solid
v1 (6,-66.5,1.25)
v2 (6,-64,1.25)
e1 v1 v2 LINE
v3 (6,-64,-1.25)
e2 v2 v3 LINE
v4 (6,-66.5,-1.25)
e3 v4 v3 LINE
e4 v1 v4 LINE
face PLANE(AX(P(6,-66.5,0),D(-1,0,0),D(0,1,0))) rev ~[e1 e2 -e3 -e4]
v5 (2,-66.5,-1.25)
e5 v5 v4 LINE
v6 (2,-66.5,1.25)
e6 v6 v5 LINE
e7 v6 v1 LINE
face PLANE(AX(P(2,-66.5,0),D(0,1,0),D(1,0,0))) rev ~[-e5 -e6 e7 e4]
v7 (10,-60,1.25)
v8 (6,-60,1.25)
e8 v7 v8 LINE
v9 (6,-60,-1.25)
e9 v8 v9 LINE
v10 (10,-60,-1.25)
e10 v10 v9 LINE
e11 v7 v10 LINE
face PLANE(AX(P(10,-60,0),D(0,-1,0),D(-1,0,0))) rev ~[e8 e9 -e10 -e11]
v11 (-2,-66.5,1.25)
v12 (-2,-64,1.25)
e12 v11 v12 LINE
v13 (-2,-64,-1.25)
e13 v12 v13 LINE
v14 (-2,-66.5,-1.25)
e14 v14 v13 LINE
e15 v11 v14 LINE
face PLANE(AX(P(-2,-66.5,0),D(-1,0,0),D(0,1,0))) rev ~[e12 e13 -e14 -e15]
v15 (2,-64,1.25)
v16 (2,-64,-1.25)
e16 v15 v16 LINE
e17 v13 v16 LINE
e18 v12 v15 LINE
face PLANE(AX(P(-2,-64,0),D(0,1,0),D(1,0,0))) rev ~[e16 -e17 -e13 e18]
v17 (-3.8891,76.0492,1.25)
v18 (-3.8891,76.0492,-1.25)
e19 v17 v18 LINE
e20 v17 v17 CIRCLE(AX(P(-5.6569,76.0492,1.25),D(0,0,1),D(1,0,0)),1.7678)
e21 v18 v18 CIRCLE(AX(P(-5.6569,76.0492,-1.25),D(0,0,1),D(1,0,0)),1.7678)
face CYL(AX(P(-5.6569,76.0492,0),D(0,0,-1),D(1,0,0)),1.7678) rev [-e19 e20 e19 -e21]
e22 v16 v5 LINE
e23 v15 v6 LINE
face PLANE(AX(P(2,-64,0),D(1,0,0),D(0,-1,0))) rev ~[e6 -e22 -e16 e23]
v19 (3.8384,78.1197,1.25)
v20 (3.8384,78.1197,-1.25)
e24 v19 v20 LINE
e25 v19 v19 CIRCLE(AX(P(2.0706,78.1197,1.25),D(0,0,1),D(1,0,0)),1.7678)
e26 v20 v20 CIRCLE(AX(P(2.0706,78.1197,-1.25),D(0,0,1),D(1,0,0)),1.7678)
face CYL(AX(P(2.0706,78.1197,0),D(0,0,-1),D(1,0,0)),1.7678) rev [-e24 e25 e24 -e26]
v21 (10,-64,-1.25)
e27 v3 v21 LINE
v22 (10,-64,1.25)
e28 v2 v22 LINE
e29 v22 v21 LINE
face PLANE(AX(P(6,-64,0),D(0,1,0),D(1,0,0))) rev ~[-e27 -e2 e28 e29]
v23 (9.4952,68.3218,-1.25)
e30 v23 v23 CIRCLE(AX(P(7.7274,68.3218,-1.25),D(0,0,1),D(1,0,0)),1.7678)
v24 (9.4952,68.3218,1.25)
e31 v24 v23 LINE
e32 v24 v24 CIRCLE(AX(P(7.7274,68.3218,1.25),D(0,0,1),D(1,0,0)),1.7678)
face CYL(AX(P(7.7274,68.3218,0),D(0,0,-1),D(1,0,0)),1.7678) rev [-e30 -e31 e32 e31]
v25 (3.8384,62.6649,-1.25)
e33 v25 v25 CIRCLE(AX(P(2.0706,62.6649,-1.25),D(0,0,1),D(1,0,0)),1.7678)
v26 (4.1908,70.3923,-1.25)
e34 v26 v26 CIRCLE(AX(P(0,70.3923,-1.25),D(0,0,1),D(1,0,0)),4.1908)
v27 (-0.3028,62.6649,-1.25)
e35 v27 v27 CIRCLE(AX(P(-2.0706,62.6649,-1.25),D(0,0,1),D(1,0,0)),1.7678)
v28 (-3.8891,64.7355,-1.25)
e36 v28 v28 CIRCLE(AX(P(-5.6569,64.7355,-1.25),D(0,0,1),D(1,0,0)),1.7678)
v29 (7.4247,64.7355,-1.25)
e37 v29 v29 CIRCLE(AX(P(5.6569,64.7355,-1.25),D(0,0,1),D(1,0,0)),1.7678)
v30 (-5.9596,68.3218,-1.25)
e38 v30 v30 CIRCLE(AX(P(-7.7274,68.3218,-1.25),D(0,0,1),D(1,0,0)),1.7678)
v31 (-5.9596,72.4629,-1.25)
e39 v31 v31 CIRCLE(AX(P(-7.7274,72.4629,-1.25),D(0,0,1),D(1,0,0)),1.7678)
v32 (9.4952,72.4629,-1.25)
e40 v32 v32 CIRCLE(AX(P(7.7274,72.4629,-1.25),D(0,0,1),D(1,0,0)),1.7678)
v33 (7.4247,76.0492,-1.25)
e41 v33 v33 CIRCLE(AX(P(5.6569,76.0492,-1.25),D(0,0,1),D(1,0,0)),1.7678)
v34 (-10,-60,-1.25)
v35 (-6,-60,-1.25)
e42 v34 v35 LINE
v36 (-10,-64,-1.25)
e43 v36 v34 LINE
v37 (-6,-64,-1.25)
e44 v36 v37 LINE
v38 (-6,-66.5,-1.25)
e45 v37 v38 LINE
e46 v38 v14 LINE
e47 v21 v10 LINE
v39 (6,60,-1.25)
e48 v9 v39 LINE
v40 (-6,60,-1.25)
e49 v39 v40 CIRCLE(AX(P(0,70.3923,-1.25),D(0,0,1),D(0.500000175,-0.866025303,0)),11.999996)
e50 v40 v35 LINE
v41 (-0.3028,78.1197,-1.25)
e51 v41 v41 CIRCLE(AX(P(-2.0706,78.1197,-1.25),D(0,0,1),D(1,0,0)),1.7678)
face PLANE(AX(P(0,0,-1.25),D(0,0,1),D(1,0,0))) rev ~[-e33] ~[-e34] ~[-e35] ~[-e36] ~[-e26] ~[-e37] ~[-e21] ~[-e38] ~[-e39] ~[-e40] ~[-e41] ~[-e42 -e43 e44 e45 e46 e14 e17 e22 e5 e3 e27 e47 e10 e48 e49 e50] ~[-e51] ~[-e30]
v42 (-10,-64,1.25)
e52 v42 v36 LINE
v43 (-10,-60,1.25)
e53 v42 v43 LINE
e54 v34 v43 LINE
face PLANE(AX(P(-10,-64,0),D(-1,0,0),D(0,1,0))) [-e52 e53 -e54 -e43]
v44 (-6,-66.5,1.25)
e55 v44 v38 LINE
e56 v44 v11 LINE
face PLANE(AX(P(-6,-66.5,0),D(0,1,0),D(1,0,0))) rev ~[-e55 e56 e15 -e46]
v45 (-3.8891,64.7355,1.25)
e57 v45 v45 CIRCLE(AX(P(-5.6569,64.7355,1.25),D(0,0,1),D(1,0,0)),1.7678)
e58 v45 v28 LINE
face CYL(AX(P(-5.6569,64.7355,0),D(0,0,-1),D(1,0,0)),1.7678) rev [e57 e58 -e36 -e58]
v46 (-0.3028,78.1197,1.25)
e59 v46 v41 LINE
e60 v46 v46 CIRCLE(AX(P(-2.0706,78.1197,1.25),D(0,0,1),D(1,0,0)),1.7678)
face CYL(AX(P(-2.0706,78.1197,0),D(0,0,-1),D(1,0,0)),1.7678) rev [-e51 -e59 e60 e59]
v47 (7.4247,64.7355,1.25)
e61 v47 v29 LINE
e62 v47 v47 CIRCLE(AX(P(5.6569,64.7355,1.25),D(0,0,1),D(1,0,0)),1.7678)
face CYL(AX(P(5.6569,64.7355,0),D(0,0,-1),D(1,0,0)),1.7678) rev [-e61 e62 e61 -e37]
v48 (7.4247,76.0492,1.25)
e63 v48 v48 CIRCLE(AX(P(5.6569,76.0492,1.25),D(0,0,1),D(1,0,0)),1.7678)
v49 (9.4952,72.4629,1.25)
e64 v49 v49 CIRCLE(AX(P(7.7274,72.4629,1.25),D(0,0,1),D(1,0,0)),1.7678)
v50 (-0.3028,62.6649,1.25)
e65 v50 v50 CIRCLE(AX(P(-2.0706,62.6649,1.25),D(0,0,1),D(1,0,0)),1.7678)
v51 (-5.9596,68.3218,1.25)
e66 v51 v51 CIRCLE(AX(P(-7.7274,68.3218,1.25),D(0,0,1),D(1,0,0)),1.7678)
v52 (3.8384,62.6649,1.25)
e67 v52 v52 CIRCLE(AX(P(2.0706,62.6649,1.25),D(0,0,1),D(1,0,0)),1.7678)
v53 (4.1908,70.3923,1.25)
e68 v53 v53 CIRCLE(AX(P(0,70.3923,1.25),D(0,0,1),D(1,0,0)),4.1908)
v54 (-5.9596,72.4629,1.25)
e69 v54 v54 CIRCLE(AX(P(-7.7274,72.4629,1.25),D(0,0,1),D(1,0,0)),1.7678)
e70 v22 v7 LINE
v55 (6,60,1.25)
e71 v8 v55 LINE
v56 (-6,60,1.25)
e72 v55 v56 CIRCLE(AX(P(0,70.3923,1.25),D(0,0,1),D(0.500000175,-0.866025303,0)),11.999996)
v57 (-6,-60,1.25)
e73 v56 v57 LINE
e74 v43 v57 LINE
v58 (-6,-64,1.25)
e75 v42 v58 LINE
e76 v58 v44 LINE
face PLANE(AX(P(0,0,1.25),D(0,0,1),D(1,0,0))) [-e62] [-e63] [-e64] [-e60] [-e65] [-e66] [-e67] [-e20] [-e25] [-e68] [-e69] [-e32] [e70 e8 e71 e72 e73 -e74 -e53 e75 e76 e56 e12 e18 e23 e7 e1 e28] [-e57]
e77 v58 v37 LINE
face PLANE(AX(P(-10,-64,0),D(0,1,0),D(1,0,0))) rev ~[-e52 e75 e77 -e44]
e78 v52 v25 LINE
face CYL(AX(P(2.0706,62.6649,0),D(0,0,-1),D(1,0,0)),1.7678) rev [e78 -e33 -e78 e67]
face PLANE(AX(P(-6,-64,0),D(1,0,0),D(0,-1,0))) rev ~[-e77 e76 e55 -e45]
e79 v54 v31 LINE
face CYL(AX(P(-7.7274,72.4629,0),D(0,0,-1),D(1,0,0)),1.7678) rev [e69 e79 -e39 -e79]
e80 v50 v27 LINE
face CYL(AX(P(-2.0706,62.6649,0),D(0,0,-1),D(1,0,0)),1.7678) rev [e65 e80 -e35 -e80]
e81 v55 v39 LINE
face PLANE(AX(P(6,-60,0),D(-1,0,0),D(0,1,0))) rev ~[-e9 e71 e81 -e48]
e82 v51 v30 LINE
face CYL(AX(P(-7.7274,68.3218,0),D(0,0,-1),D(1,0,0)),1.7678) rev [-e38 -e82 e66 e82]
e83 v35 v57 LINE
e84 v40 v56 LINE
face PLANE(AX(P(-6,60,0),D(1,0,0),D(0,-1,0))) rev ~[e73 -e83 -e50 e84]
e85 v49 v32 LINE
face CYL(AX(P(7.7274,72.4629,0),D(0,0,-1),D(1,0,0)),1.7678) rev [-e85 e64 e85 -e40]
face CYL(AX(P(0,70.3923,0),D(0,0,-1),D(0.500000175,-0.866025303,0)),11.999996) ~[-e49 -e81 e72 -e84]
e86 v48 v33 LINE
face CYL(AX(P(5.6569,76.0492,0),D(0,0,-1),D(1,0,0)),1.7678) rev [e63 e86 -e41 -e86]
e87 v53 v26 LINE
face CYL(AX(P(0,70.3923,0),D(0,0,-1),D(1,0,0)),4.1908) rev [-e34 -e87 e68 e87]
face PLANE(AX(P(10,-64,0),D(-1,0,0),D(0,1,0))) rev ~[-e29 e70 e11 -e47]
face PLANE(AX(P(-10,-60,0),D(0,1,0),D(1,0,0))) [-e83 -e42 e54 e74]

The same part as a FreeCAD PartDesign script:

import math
import FreeCAD as App
import Part
import Sketcher

V = App.Vector

doc = App.newDocument("Part")
params = doc.addObject("Spreadsheet::Sheet", "Params")
for row, (alias, value) in enumerate([
    ("sketch1_radius", "12 mm"),
    ("sketch1_width", "4 mm"),
    ("sketch1_height", "120 mm"),
    ("sketch1_height2", "2.5 mm"),
    ("pad1_length", "2.5 mm"),
], start=1):
    params.set(f"A{row}", alias)
    params.set(f"B{row}", "=" + value)
    params.setAlias(f"B{row}", alias)

body = doc.addObject("PartDesign::Body", "Body")

# Sketch on XY plane
sketch1 = body.newObject("Sketcher::SketchObject", "Sketch")
sketch1.AttachmentSupport = (doc.getObject("XY_Plane"), [""])
sketch1.MapMode = "FlatFace"
sketch1.addGeometry(Part.ArcOfCircle(Part.Circle(V(0, 70.4, 0), V(0, 0, 1), 12), math.radians(-60), math.radians(240)), False)
sketch1.addGeometry(Part.LineSegment(V(-6, 60, 0), V(-6, -60, 0)), False)
sketch1.addGeometry(Part.LineSegment(V(-6, -60, 0), V(-10, -60, 0)), False)
sketch1.addGeometry(Part.LineSegment(V(-10, -60, 0), V(-10, -64, 0)), False)
sketch1.addGeometry(Part.LineSegment(V(-10, -64, 0), V(-6, -64, 0)), False)
sketch1.addGeometry(Part.LineSegment(V(-6, -64, 0), V(-6, -66.5, 0)), False)
sketch1.addGeometry(Part.LineSegment(V(-6, -66.5, 0), V(-2, -66.5, 0)), False)
sketch1.addGeometry(Part.LineSegment(V(-2, -66.5, 0), V(-2, -64, 0)), False)
sketch1.addGeometry(Part.LineSegment(V(-2, -64, 0), V(2, -64, 0)), False)
sketch1.addGeometry(Part.LineSegment(V(2, -64, 0), V(2, -66.5, 0)), False)
sketch1.addGeometry(Part.LineSegment(V(2, -66.5, 0), V(6, -66.5, 0)), False)
sketch1.addGeometry(Part.LineSegment(V(6, -66.5, 0), V(6, -64, 0)), False)
sketch1.addGeometry(Part.LineSegment(V(6, -64, 0), V(10, -64, 0)), False)
sketch1.addGeometry(Part.LineSegment(V(10, -64, 0), V(10, -60, 0)), False)
sketch1.addGeometry(Part.LineSegment(V(10, -60, 0), V(6, -60, 0)), False)
sketch1.addGeometry(Part.LineSegment(V(6, -60, 0), V(6, 60, 0)), False)
sketch1.addGeometry(Part.Circle(V(-7.7, 68.3, 0), V(0, 0, 1), 1.8), False)
sketch1.addGeometry(Part.Circle(V(-7.7, 72.5, 0), V(0, 0, 1), 1.8), False)
sketch1.addGeometry(Part.Circle(V(-2.1, 62.7, 0), V(0, 0, 1), 1.8), False)
sketch1.addGeometry(Part.Circle(V(-5.7, 64.7, 0), V(0, 0, 1), 1.8), False)
sketch1.addGeometry(Part.Circle(V(-5.7, 76, 0), V(0, 0, 1), 1.8), False)
sketch1.addGeometry(Part.Circle(V(-2.1, 78.1, 0), V(0, 0, 1), 1.8), False)
sketch1.addGeometry(Part.Circle(V(2.1, 62.7, 0), V(0, 0, 1), 1.8), False)
sketch1.addGeometry(Part.Circle(V(0, 70.4, 0), V(0, 0, 1), 4.2), False)
sketch1.addGeometry(Part.Circle(V(2.1, 78.1, 0), V(0, 0, 1), 1.8), False)
sketch1.addGeometry(Part.Circle(V(5.7, 64.7, 0), V(0, 0, 1), 1.8), False)
sketch1.addGeometry(Part.Circle(V(5.7, 76, 0), V(0, 0, 1), 1.8), False)
sketch1.addGeometry(Part.Circle(V(7.7, 68.3, 0), V(0, 0, 1), 1.8), False)
sketch1.addGeometry(Part.Circle(V(7.7, 72.5, 0), V(0, 0, 1), 1.8), False)
sketch1.addConstraint(Sketcher.Constraint("Coincident", 0, 2, 1, 1))
sketch1.addConstraint(Sketcher.Constraint("Coincident", 1, 2, 2, 1))
sketch1.addConstraint(Sketcher.Constraint("Coincident", 2, 2, 3, 1))
sketch1.addConstraint(Sketcher.Constraint("Coincident", 3, 2, 4, 1))
sketch1.addConstraint(Sketcher.Constraint("Coincident", 4, 2, 5, 1))
sketch1.addConstraint(Sketcher.Constraint("Coincident", 5, 2, 6, 1))
sketch1.addConstraint(Sketcher.Constraint("Coincident", 6, 2, 7, 1))
sketch1.addConstraint(Sketcher.Constraint("Coincident", 7, 2, 8, 1))
sketch1.addConstraint(Sketcher.Constraint("Coincident", 8, 2, 9, 1))
sketch1.addConstraint(Sketcher.Constraint("Coincident", 9, 2, 10, 1))
sketch1.addConstraint(Sketcher.Constraint("Coincident", 10, 2, 11, 1))
sketch1.addConstraint(Sketcher.Constraint("Coincident", 11, 2, 12, 1))
sketch1.addConstraint(Sketcher.Constraint("Coincident", 12, 2, 13, 1))
sketch1.addConstraint(Sketcher.Constraint("Coincident", 13, 2, 14, 1))
sketch1.addConstraint(Sketcher.Constraint("Coincident", 14, 2, 15, 1))
sketch1.addConstraint(Sketcher.Constraint("Coincident", 15, 2, 0, 1))
sketch1.addConstraint(Sketcher.Constraint("Vertical", 1))
sketch1.addConstraint(Sketcher.Constraint("Horizontal", 2))
sketch1.addConstraint(Sketcher.Constraint("Vertical", 3))
sketch1.addConstraint(Sketcher.Constraint("Horizontal", 4))
sketch1.addConstraint(Sketcher.Constraint("Vertical", 5))
sketch1.addConstraint(Sketcher.Constraint("Horizontal", 6))
sketch1.addConstraint(Sketcher.Constraint("Vertical", 7))
sketch1.addConstraint(Sketcher.Constraint("Horizontal", 8))
sketch1.addConstraint(Sketcher.Constraint("Vertical", 9))
sketch1.addConstraint(Sketcher.Constraint("Horizontal", 10))
sketch1.addConstraint(Sketcher.Constraint("Vertical", 11))
sketch1.addConstraint(Sketcher.Constraint("Horizontal", 12))
sketch1.addConstraint(Sketcher.Constraint("Vertical", 13))
sketch1.addConstraint(Sketcher.Constraint("Horizontal", 14))
sketch1.addConstraint(Sketcher.Constraint("Vertical", 15))
sketch1.addConstraint(Sketcher.Constraint("Coincident", 23, 3, 0, 3))
sketch1.addConstraint(Sketcher.Constraint("Equal", 16, 17))
sketch1.addConstraint(Sketcher.Constraint("Equal", 17, 18))
sketch1.addConstraint(Sketcher.Constraint("Equal", 18, 19))
sketch1.addConstraint(Sketcher.Constraint("Equal", 19, 20))
sketch1.addConstraint(Sketcher.Constraint("Equal", 20, 21))
sketch1.addConstraint(Sketcher.Constraint("Equal", 21, 22))
sketch1.addConstraint(Sketcher.Constraint("Equal", 22, 24))
sketch1.addConstraint(Sketcher.Constraint("Equal", 24, 25))
sketch1.addConstraint(Sketcher.Constraint("Equal", 25, 26))
sketch1.addConstraint(Sketcher.Constraint("Equal", 26, 27))
sketch1.addConstraint(Sketcher.Constraint("Equal", 27, 28))
sketch1.addConstraint(Sketcher.Constraint("Symmetric", 0, 2, 14, 2, -1, 1))
sketch1.addConstraint(Sketcher.Constraint("Symmetric", 18, 3, 22, 3, -2))
sketch1.addConstraint(Sketcher.Constraint("Symmetric", 21, 3, 24, 3, -2))
sketch1.addConstraint(Sketcher.Constraint("Symmetric", 19, 3, 25, 3, -2))
sketch1.addConstraint(Sketcher.Constraint("Symmetric", 20, 3, 26, 3, -2))
sketch1.addConstraint(Sketcher.Constraint("Symmetric", 16, 3, 27, 3, -2))
sketch1.addConstraint(Sketcher.Constraint("Symmetric", 17, 3, 28, 3, -2))
sketch1.addConstraint(Sketcher.Constraint("Symmetric", 6, 2, 9, 2, -2))
sketch1.addConstraint(Sketcher.Constraint("Symmetric", 4, 2, 11, 2, -2))
sketch1.addConstraint(Sketcher.Constraint("Symmetric", 2, 2, 13, 2, -2))
sketch1.addConstraint(Sketcher.Constraint("PointOnObject", 0, 3, -2))
sketch1.addConstraint(Sketcher.Constraint("Horizontal", 4, 2, 7, 2))
sketch1.addConstraint(Sketcher.Constraint("Vertical", 16, 3, 17, 3))
sketch1.addConstraint(Sketcher.Constraint("Vertical", 19, 3, 20, 3))
sketch1.addConstraint(Sketcher.Constraint("Vertical", 18, 3, 21, 3))
sketch1.addConstraint(Sketcher.Constraint("Vertical", 1, 2, 4, 2))
sketch1.addConstraint(Sketcher.Constraint("Equal", 4, 6))
sketch1.addConstraint(Sketcher.Constraint("Equal", 6, 8))
sketch1.addConstraint(Sketcher.Constraint("Equal", 14, 3))
sketch1.addConstraint(Sketcher.Constraint("Radius", 0, 12.0))
sketch1.addConstraint(Sketcher.Constraint("DistanceX", 2, 2, 2, 1, 4.0))
sketch1.addConstraint(Sketcher.Constraint("DistanceY", 1, 2, 1, 1, 120.0))
sketch1.addConstraint(Sketcher.Constraint("DistanceY", 5, 2, 5, 1, 2.5))
sketch1.addConstraint(Sketcher.Constraint("Diameter", 16, 3.5356))
sketch1.addConstraint(Sketcher.Constraint("Diameter", 23, 8.3816))
sketch1.addConstraint(Sketcher.Constraint("DistanceY", -1, 1, 17, 3, 72.463))
sketch1.addConstraint(Sketcher.Constraint("DistanceY", -1, 1, 18, 3, 62.665))
sketch1.addConstraint(Sketcher.Constraint("DistanceX", 19, 3, -1, 1, 5.657))
sketch1.addConstraint(Sketcher.Constraint("DistanceY", 16, 3, 17, 3, 4.141))
sketch1.addConstraint(Sketcher.Constraint("DistanceY", 0, 3, 20, 3, 5.657))
sketch1.addConstraint(Sketcher.Constraint("DistanceY", 16, 3, 21, 3, 9.798))
sketch1.addConstraint(Sketcher.Constraint("DistanceX", 16, 3, 22, 3, 9.798))
sketch1.addConstraint(Sketcher.Constraint("DistanceX", 16, 3, -1, 1, 7.7274))
sketch1.addConstraint(Sketcher.Constraint("DistanceY", -1, 1, 19, 3, 64.7355))
sketch1.setExpression("Constraints[62]", "Params.sketch1_radius")
sketch1.setExpression("Constraints[63]", "Params.sketch1_width")
sketch1.setExpression("Constraints[64]", "Params.sketch1_height")
sketch1.setExpression("Constraints[65]", "Params.sketch1_height2")
pad1 = body.newObject("PartDesign::Pad", "Pad")
pad1.Profile = sketch1
pad1.setExpression("Length", "Params.pad1_length")
pad1.Midplane = True

doc.recompute()
